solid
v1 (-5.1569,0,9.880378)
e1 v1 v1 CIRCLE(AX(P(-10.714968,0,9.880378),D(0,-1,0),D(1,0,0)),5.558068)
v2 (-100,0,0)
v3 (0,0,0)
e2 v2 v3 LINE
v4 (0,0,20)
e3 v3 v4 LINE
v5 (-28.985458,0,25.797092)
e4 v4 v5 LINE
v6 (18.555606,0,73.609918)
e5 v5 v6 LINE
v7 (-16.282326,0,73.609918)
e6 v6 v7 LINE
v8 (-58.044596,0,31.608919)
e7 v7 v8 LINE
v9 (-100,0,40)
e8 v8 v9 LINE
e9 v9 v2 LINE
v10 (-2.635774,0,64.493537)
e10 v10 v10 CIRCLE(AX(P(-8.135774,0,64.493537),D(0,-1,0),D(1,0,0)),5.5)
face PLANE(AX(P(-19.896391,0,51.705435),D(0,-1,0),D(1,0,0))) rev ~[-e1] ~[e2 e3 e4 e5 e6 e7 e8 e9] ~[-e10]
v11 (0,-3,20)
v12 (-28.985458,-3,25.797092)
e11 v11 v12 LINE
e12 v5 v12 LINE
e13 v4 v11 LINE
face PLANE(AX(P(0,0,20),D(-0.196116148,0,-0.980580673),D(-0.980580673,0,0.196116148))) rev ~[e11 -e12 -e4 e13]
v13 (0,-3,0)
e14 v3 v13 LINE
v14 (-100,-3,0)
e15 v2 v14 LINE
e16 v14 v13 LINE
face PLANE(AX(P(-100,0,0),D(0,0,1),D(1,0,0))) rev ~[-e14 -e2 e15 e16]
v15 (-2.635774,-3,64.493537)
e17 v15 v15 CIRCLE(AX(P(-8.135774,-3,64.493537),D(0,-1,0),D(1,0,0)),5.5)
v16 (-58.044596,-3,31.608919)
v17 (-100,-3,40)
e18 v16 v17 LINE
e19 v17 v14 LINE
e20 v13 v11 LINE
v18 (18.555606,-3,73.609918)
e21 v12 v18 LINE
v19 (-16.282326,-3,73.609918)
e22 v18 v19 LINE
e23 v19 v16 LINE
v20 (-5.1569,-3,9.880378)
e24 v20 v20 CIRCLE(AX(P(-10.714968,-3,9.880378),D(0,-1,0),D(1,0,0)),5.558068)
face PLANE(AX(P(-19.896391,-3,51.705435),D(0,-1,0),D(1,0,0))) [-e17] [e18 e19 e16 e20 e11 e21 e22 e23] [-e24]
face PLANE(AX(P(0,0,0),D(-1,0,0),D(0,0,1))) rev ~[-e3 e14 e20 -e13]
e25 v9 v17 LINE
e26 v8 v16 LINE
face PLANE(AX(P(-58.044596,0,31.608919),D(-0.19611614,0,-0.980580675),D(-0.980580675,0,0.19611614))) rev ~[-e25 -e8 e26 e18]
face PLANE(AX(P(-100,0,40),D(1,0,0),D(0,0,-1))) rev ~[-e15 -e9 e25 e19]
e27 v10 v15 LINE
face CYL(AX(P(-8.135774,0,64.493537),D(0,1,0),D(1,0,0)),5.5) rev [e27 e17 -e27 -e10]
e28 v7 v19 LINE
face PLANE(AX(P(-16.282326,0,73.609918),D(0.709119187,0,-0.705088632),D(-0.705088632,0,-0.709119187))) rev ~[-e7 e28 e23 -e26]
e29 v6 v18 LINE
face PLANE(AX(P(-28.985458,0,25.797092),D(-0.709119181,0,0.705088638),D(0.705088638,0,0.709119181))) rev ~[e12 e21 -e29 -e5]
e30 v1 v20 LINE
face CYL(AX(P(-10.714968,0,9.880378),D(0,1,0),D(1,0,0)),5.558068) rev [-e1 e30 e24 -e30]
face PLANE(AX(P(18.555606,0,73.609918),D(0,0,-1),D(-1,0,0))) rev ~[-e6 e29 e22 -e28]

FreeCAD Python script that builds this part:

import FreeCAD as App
import Part
import Sketcher
from FreeCAD import Vector
Q = App.Units.Quantity


def add_polygon(sketch, points):
    """Adds a closed chain of lines whose ends are joined by coincident constraints."""
    first, n = sketch.GeometryCount, len(points)
    for a, b in zip(points, points[1:] + points[:1]):
        sketch.addGeometry(Part.LineSegment(App.Vector(*a, 0), App.Vector(*b, 0)), False)
    for i in range(n):
        sketch.addConstraint(Sketcher.Constraint("Coincident", first + i, 2, first + (i + 1) % n, 1))

doc = App.newDocument("Part")
body = doc.addObject("PartDesign::Body", "Body")

sketch1 = body.newObject("Sketcher::SketchObject", "Sketch")
sketch1.AttachmentSupport = (doc.getObject("XZ_Plane"), [""])
sketch1.MapMode = "FlatFace"
add_polygon(sketch1, [(-16, 74), (-58, 32), (-100, 40), (-100, 0), (0, 0), (0, 20), (-29, 26), (19, 74)])
sketch1.addGeometry(Part.Circle(Vector(-11, 10, 0), Vector(0, 0, 1), 6), False)
sketch1.addGeometry(Part.Circle(Vector(-8, 64, 0), Vector(0, 0, 1), 6), False)
sketch1.addConstraint([
    Sketcher.Constraint("Vertical", 2),
    Sketcher.Constraint("Horizontal", 3),
    Sketcher.Constraint("Vertical", 4),
    Sketcher.Constraint("Horizontal", 7),
    Sketcher.Constraint("Coincident", 3, 2, -1, 1),
    Sketcher.Constraint("Parallel", 1, 5),
    Sketcher.Constraint("Parallel", 0, 6),
    Sketcher.Constraint("Diameter", 9, Q("11 mm")),
    Sketcher.Constraint("DistanceX", 3, 1, 3, 2, Q("100 mm")),
    Sketcher.Constraint("DistanceY", 2, 2, 2, 1, Q("40 mm")),
    Sketcher.Constraint("DistanceY", 4, 1, 4, 2, Q("20 mm")),
    Sketcher.Constraint("Diameter", 8, Q("11.116136 mm")),
    Sketcher.Constraint("DistanceY", 0, 2, 7, 2, Q("42.000999 mm")),
    Sketcher.Constraint("DistanceX", 7, 2, 7, 1, Q("34.837932 mm")),
    Sketcher.Constraint("DistanceX", 8, 3, -1, 1, Q("10.714968 mm")),
    Sketcher.Constraint("DistanceY", -1, 1, 0, 2, Q("31.608919 mm")),
    Sketcher.Constraint("DistanceX", 5, 2, -1, 1, Q("28.985458 mm")),
    Sketcher.Constraint("DistanceY", -1, 1, 5, 2, Q("25.797092 mm")),
    Sketcher.Constraint("DistanceY", 8, 3, 9, 3, Q("54.613159 mm")),
    Sketcher.Constraint("DistanceY", 8, 3, 0, 2, Q("21.728541 mm")),
    Sketcher.Constraint("DistanceX", 9, 3, 6, 2, Q("26.69138 mm")),
])
pad1 = body.newObject("PartDesign::Pad", "Pad")
pad1.Profile = sketch1
pad1.Length = 3

doc.recompute()
